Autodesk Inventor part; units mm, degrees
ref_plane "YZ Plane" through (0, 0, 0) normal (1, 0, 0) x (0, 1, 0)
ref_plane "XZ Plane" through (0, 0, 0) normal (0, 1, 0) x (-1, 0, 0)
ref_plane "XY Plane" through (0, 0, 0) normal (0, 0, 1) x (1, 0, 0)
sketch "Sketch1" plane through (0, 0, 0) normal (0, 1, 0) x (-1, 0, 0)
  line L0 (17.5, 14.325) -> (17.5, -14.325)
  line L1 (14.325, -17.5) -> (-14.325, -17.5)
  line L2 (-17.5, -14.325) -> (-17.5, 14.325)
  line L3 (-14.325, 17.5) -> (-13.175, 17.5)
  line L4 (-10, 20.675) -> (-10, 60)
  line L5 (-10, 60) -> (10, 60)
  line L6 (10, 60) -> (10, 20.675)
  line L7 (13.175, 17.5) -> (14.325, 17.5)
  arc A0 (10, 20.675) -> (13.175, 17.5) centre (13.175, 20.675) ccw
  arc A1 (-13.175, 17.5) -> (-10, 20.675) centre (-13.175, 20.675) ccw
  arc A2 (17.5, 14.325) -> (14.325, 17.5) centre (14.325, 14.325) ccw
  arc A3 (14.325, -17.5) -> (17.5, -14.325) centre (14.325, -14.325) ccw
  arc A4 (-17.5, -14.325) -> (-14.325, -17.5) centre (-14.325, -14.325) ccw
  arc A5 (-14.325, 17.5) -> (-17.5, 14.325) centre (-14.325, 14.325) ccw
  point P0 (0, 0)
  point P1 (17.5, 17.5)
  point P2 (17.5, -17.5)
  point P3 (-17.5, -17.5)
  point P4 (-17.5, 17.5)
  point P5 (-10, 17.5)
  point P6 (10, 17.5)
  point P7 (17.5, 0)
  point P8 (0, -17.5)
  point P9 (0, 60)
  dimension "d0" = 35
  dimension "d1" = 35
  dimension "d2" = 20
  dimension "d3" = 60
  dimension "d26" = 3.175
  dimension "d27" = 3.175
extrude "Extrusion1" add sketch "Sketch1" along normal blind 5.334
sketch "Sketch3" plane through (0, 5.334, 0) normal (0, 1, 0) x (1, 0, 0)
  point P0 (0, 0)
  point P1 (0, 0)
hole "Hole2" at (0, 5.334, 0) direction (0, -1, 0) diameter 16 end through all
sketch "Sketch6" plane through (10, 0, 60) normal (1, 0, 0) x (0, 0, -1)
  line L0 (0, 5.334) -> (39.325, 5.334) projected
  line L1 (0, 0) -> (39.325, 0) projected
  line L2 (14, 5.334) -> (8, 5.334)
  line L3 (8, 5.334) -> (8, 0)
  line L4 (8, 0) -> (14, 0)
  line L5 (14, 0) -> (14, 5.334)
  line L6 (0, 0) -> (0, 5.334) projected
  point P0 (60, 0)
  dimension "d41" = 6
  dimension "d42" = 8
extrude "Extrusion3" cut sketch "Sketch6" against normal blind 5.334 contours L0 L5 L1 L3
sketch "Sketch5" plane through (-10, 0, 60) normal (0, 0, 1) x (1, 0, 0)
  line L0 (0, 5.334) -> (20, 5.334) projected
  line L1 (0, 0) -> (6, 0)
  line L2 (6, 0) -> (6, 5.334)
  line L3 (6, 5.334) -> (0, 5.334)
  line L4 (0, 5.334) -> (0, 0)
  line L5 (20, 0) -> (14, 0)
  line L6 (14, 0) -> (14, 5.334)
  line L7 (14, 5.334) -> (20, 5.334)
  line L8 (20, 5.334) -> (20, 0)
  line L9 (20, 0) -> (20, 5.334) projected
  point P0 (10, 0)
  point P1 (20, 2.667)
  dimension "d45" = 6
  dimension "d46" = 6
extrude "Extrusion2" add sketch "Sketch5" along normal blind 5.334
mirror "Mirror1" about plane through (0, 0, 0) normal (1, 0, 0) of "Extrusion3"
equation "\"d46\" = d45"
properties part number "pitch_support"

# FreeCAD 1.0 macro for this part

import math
import FreeCAD as App
import Part
import Sketcher

doc = App.newDocument("Part")
params = doc.addObject("Spreadsheet::Sheet", "Params")
for row, (alias, value) in enumerate([
    ("sketch1_width", "20 mm"),
    ("pad1_length", "5.334 mm"),
    ("sketch2_diameter", "16 mm"),
    ("hole_diameter", "16 mm"),
    ("sketch3_height", "6 mm"),
    ("pocket1_length", "5.334 mm"),
    ("sketch4_width", "6 mm"),
    ("pad2_length", "5.334 mm"),
], start=1):
    params.set(f"A{row}", alias)
    params.set(f"B{row}", "=" + value)
    params.setAlias(f"B{row}", alias)

body = doc.addObject("PartDesign::Body", "Body")

# Sketch on XZ plane
sketch1 = doc.addObject("Sketcher::SketchObject", "Sketch")
body.addObject(sketch1)
sketch1.AttachmentSupport = (doc.XZ_Plane, [""])
sketch1.MapMode = "FlatFace"
sketch1.addGeometry(Part.LineSegment(App.Vector(-17.5, -14.3, 0), App.Vector(-17.5, 14.3, 0)), False)
sketch1.addGeometry(Part.ArcOfCircle(Part.Circle(App.Vector(-14.3, 14.3, 0), App.Vector(0, 0, 1), 3.2), math.radians(90), math.radians(180)), False)
sketch1.addGeometry(Part.LineSegment(App.Vector(-14.3, 17.5, 0), App.Vector(-13.2, 17.5, 0)), False)
sketch1.addGeometry(Part.ArcOfCircle(Part.Circle(App.Vector(-13.2, 20.7, 0), App.Vector(0, 0, 1), 3.2), math.radians(-90), math.radians(0)), False)
sketch1.addGeometry(Part.LineSegment(App.Vector(-10, 20.7, 0), App.Vector(-10, 60, 0)), False)
sketch1.addGeometry(Part.LineSegment(App.Vector(-10, 60, 0), App.Vector(10, 60, 0)), False)
sketch1.addGeometry(Part.LineSegment(App.Vector(10, 60, 0), App.Vector(10, 20.7, 0)), False)
sketch1.addGeometry(Part.ArcOfCircle(Part.Circle(App.Vector(13.2, 20.7, 0), App.Vector(0, 0, 1), 3.2), math.radians(180), math.radians(270)), False)
sketch1.addGeometry(Part.LineSegment(App.Vector(13.2, 17.5, 0), App.Vector(14.3, 17.5, 0)), False)
sketch1.addGeometry(Part.ArcOfCircle(Part.Circle(App.Vector(14.3, 14.3, 0), App.Vector(0, 0, 1), 3.2), math.radians(0), math.radians(90)), False)
sketch1.addGeometry(Part.LineSegment(App.Vector(17.5, 14.3, 0), App.Vector(17.5, -14.3, 0)), False)
sketch1.addGeometry(Part.ArcOfCircle(Part.Circle(App.Vector(14.3, -14.3, 0), App.Vector(0, 0, 1), 3.2), math.radians(-90), math.radians(0)), False)
sketch1.addGeometry(Part.LineSegment(App.Vector(14.3, -17.5, 0), App.Vector(-14.3, -17.5, 0)), False)
sketch1.addGeometry(Part.ArcOfCircle(Part.Circle(App.Vector(-14.3, -14.3, 0), App.Vector(0, 0, 1), 3.2), math.radians(180), math.radians(270)), False)
sketch1.addConstraint(Sketcher.Constraint("Tangent", 0, 2, 1, 2))
sketch1.addConstraint(Sketcher.Constraint("Tangent", 1, 1, 2, 1))
sketch1.addConstraint(Sketcher.Constraint("Tangent", 2, 2, 3, 1))
sketch1.addConstraint(Sketcher.Constraint("Tangent", 3, 2, 4, 1))
sketch1.addConstraint(Sketcher.Constraint("Coincident", 4, 2, 5, 1))
sketch1.addConstraint(Sketcher.Constraint("Coincident", 5, 2, 6, 1))
sketch1.addConstraint(Sketcher.Constraint("Tangent", 6, 2, 7, 1))
sketch1.addConstraint(Sketcher.Constraint("Tangent", 7, 2, 8, 1))
sketch1.addConstraint(Sketcher.Constraint("Tangent", 8, 2, 9, 2))
sketch1.addConstraint(Sketcher.Constraint("Tangent", 9, 1, 10, 1))
sketch1.addConstraint(Sketcher.Constraint("Tangent", 10, 2, 11, 2))
sketch1.addConstraint(Sketcher.Constraint("Tangent", 11, 1, 12, 1))
sketch1.addConstraint(Sketcher.Constraint("Tangent", 12, 2, 13, 2))
sketch1.addConstraint(Sketcher.Constraint("Tangent", 13, 1, 0, 1))
sketch1.addConstraint(Sketcher.Constraint("Vertical", 0))
sketch1.addConstraint(Sketcher.Constraint("Horizontal", 2))
sketch1.addConstraint(Sketcher.Constraint("Vertical", 4))
sketch1.addConstraint(Sketcher.Constraint("Horizontal", 5))
sketch1.addConstraint(Sketcher.Constraint("Vertical", 6))
sketch1.addConstraint(Sketcher.Constraint("Horizontal", 8))
sketch1.addConstraint(Sketcher.Constraint("Vertical", 10))
sketch1.addConstraint(Sketcher.Constraint("Horizontal", 12))
sketch1.addConstraint(Sketcher.Constraint("Equal", 1, 3))
sketch1.addConstraint(Sketcher.Constraint("Equal", 3, 7))
sketch1.addConstraint(Sketcher.Constraint("Equal", 7, 9))
sketch1.addConstraint(Sketcher.Constraint("Equal", 9, 11))
sketch1.addConstraint(Sketcher.Constraint("Equal", 11, 13))
sketch1.addConstraint(Sketcher.Constraint("Symmetric", 1, 3, 11, 3, -1, 1))
sketch1.addConstraint(Sketcher.Constraint("Symmetric", 3, 3, 7, 3, -2))
sketch1.addConstraint(Sketcher.Constraint("Equal", 12, 0))
sketch1.addConstraint(Sketcher.Constraint("DistanceX", 5, 1, 5, 2, 20.0))
sketch1.addConstraint(Sketcher.Constraint("DistanceY", -1, 1, 4, 2, 60.0))
sketch1.addConstraint(Sketcher.Constraint("Radius", 1, 3.175))
sketch1.addConstraint(Sketcher.Constraint("DistanceY", 11, 3, 7, 3, 35.0))
sketch1.setExpression("Constraints[30]", "Params.sketch1_width")
pad1 = doc.addObject("PartDesign::Pad", "Pad")
body.addObject(pad1)
pad1.Profile = sketch1
pad1.setExpression("Length", "Params.pad1_length")
pad1.Reversed = True

# Sketch on XZ plane
sketch2 = doc.addObject("Sketcher::SketchObject", "Sketch001")
body.addObject(sketch2)
sketch2.AttachmentSupport = (doc.XZ_Plane, [""])
sketch2.MapMode = "FlatFace"
sketch2.AttachmentOffset = App.Placement(App.Vector(0, 0, -5.334), App.Rotation())
sketch2.addGeometry(Part.Circle(App.Vector(0, 0, 0), App.Vector(0, 0, 1), 8), False)
sketch2.addConstraint(Sketcher.Constraint("Coincident", 0, 3, -1, 1))
sketch2.addConstraint(Sketcher.Constraint("Diameter", 0, 16.0))
sketch2.setExpression("Constraints[1]", "Params.sketch2_diameter")
doc.recompute()
hole = doc.addObject("PartDesign::Hole", "Hole")
body.addObject(hole)
hole.Profile = sketch2
hole.ThreadType = "None"
hole.setExpression("Diameter", "Params.hole_diameter")
hole.DepthType = "ThroughAll"
hole.Reversed = True

# Sketch on YZ plane
sketch3 = doc.addObject("Sketcher::SketchObject", "Sketch002")
body.addObject(sketch3)
sketch3.AttachmentSupport = (doc.YZ_Plane, [""])
sketch3.MapMode = "FlatFace"
sketch3.AttachmentOffset = App.Placement(App.Vector(0, 0, 10), App.Rotation())
sketch3.addGeometry(Part.LineSegment(App.Vector(5, 46, 0), App.Vector(5, 52, 0)), False)
sketch3.addGeometry(Part.LineSegment(App.Vector(5, 52, 0), App.Vector(0, 52, 0)), False)
sketch3.addGeometry(Part.LineSegment(App.Vector(0, 52, 0), App.Vector(0, 46, 0)), False)
sketch3.addGeometry(Part.LineSegment(App.Vector(0, 46, 0), App.Vector(5, 46, 0)), False)
sketch3.addConstraint(Sketcher.Constraint("Coincident", 0, 2, 1, 1))
sketch3.addConstraint(Sketcher.Constraint("Coincident", 1, 2, 2, 1))
sketch3.addConstraint(Sketcher.Constraint("Coincident", 2, 2, 3, 1))
sketch3.addConstraint(Sketcher.Constraint("Coincident", 3, 2, 0, 1))
sketch3.addConstraint(Sketcher.Constraint("Vertical", 0))
sketch3.addConstraint(Sketcher.Constraint("Horizontal", 1))
sketch3.addConstraint(Sketcher.Constraint("Vertical", 2))
sketch3.addConstraint(Sketcher.Constraint("Horizontal", 3))
sketch3.addConstraint(Sketcher.Constraint("PointOnObject", 1, 2, -2))
sketch3.addConstraint(Sketcher.Constraint("DistanceY", 0, 1, 0, 2, 6.0))
sketch3.addConstraint(Sketcher.Constraint("DistanceY", -1, 1, 0, 2, 52.0))
sketch3.addConstraint(Sketcher.Constraint("DistanceX", 1, 2, 1, 1, 5.334))
sketch3.setExpression("Constraints[9]", "Params.sketch3_height")
pocket1 = doc.addObject("PartDesign::Pocket", "Pocket")
body.addObject(pocket1)
pocket1.Profile = sketch3
pocket1.setExpression("Length", "Params.pocket1_length")

# Sketch on XY plane
sketch4 = doc.addObject("Sketcher::SketchObject", "Sketch003")
body.addObject(sketch4)
sketch4.AttachmentSupport = (doc.XY_Plane, [""])
sketch4.MapMode = "FlatFace"
sketch4.AttachmentOffset = App.Placement(App.Vector(0, 0, 60), App.Rotation())
sketch4.addGeometry(Part.LineSegment(App.Vector(10, 5, 0), App.Vector(4, 5, 0)), False)
sketch4.addGeometry(Part.LineSegment(App.Vector(4, 5, 0), App.Vector(4, 0, 0)), False)
sketch4.addGeometry(Part.LineSegment(App.Vector(4, 0, 0), App.Vector(10, 0, 0)), False)
sketch4.addGeometry(Part.LineSegment(App.Vector(10, 0, 0), App.Vector(10, 5, 0)), False)
sketch4.addGeometry(Part.LineSegment(App.Vector(-4, 5, 0), App.Vector(-10, 5, 0)), False)
sketch4.addGeometry(Part.LineSegment(App.Vector(-10, 5, 0), App.Vector(-10, 0, 0)), False)
sketch4.addGeometry(Part.LineSegment(App.Vector(-10, 0, 0), App.Vector(-4, 0, 0)), False)
sketch4.addGeometry(Part.LineSegment(App.Vector(-4, 0, 0), App.Vector(-4, 5, 0)), False)
sketch4.addConstraint(Sketcher.Constraint("Coincident", 0, 2, 1, 1))
sketch4.addConstraint(Sketcher.Constraint("Coincident", 1, 2, 2, 1))
sketch4.addConstraint(Sketcher.Constraint("Coincident", 2, 2, 3, 1))
sketch4.addConstraint(Sketcher.Constraint("Coincident", 3, 2, 0, 1))
sketch4.addConstraint(Sketcher.Constraint("Coincident", 4, 2, 5, 1))
sketch4.addConstraint(Sketcher.Constraint("Coincident", 5, 2, 6, 1))
sketch4.addConstraint(Sketcher.Constraint("Coincident", 6, 2, 7, 1))
sketch4.addConstraint(Sketcher.Constraint("Coincident", 7, 2, 4, 1))
sketch4.addConstraint(Sketcher.Constraint("Horizontal", 0))
sketch4.addConstraint(Sketcher.Constraint("Vertical", 1))
sketch4.addConstraint(Sketcher.Constraint("Horizontal", 2))
sketch4.addConstraint(Sketcher.Constraint("Vertical", 3))
sketch4.addConstraint(Sketcher.Constraint("Horizontal", 4))
sketch4.addConstraint(Sketcher.Constraint("Vertical", 5))
sketch4.addConstraint(Sketcher.Constraint("Horizontal", 6))
sketch4.addConstraint(Sketcher.Constraint("Vertical", 7))
sketch4.addConstraint(Sketcher.Constraint("Symmetric", 2, 2, 5, 2, -1, 1))
sketch4.addConstraint(Sketcher.Constraint("Symmetric", 1, 2, 6, 2, -2))
sketch4.addConstraint(Sketcher.Constraint("Horizontal", 3, 2, 4, 2))
sketch4.addConstraint(Sketcher.Constraint("DistanceX", 0, 2, 0, 1, 6.0))
sketch4.addConstraint(Sketcher.Constraint("DistanceX", -1, 1, 0, 2, 4.0))
sketch4.addConstraint(Sketcher.Constraint("DistanceY", 1, 2, 1, 1, 5.334))
sketch4.setExpression("Constraints[19]", "Params.sketch4_width")
pad2 = doc.addObject("PartDesign::Pad", "Pad001")
body.addObject(pad2)
pad2.Profile = sketch4
pad2.setExpression("Length", "Params.pad2_length")
doc.recompute()

mirrored = doc.addObject("PartDesign::Mirrored", "Mirrored")
body.addObject(mirrored)
mirrored.Originals = [pocket1]
mirrored.MirrorPlane = (doc.YZ_Plane, [""])
body.Tip = mirrored

doc.recompute()
